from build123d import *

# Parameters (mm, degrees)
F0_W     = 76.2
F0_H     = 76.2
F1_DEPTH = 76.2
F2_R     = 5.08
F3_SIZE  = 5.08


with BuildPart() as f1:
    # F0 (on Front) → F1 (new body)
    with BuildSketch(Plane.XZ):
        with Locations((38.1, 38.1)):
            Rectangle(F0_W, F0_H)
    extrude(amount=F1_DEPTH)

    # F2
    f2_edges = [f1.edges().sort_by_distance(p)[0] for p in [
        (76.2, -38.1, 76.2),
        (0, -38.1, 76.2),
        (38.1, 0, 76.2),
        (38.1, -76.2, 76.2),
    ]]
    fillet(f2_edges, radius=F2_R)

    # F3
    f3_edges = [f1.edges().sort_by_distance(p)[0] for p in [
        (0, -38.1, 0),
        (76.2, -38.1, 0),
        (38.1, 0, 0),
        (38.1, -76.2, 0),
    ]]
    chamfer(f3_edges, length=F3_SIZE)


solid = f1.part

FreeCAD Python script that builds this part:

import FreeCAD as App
import Part
import Sketcher
from FreeCAD import Vector
Q = App.Units.Quantity


def edges_at(feature, points):
    """Names of the edges that pass closest to the given points."""
    edges = feature.Shape.Edges
    near = lambda p: min(range(len(edges)), key=lambda i: edges[i].distToShape(Part.Vertex(*p))[0])
    return sorted({f"Edge{near(p) + 1}" for p in points})

doc = App.newDocument("Part")
params = doc.addObject("Spreadsheet::Sheet", "Params")
for row, (alias, value) in enumerate([
    ("sketch1_width", "3 in"),
    ("pad1_length", "3 in"),
    ("fillet_radius", "0.2 in"),
    ("chamfer_size", "0.2 in"),
], start=1):
    params.set(f"A{row}", alias)
    params.set(f"B{row}", "=" + value)
    params.setAlias(f"B{row}", alias)

body = doc.addObject("PartDesign::Body", "Body")

# Sketch on XZ plane
sketch1 = body.newObject("Sketcher::SketchObject", "Sketch")
sketch1.AttachmentSupport = (doc.getObject("XZ_Plane"), [""])
sketch1.MapMode = "FlatFace"
sketch1.addGeometry([
    Part.LineSegment(Vector(0, 76, 0), Vector(0, 0, 0)),
    Part.LineSegment(Vector(0, 0, 0), Vector(76, 0, 0)),
    Part.LineSegment(Vector(76, 0, 0), Vector(76, 76, 0)),
    Part.LineSegment(Vector(76, 76, 0), Vector(0, 76, 0)),
], False)
sketch1.addConstraint([
    Sketcher.Constraint("Coincident", 0, 2, 1, 1),
    Sketcher.Constraint("Coincident", 1, 2, 2, 1),
    Sketcher.Constraint("Coincident", 2, 2, 3, 1),
    Sketcher.Constraint("Coincident", 3, 2, 0, 1),
    Sketcher.Constraint("Vertical", 0),
    Sketcher.Constraint("Horizontal", 1),
    Sketcher.Constraint("Vertical", 2),
    Sketcher.Constraint("Horizontal", 3),
    Sketcher.Constraint("Coincident", 0, 2, -1, 1),
    Sketcher.Constraint("Equal", 3, 0),
    Sketcher.Constraint("DistanceX", 1, 1, 1, 2, Q("3 in")),
])
sketch1.setExpression("Constraints[10]", "Params.sketch1_width")
pad1 = body.newObject("PartDesign::Pad", "Pad")
pad1.Profile = sketch1
pad1.setExpression("Length", "Params.pad1_length")
doc.recompute()

fillet = body.newObject("PartDesign::Fillet", "Fillet")
fillet.Base = (pad1, edges_at(pad1, [
    (76.2, -38.1, 76.2),
    (0, -38.1, 76.2),
    (38.1, 0, 76.2),
    (38.1, -76.2, 76.2),
]))
fillet.setExpression("Radius", "Params.fillet_radius")
doc.recompute()

chamfer = body.newObject("PartDesign::Chamfer", "Chamfer")
chamfer.Base = (fillet, edges_at(fillet, [
    (0, -38.1, 0),
    (76.2, -38.1, 0),
    (38.1, 0, 0),
    (38.1, -76.2, 0),
]))
chamfer.setExpression("Size", "Params.chamfer_size")

doc.recompute()
